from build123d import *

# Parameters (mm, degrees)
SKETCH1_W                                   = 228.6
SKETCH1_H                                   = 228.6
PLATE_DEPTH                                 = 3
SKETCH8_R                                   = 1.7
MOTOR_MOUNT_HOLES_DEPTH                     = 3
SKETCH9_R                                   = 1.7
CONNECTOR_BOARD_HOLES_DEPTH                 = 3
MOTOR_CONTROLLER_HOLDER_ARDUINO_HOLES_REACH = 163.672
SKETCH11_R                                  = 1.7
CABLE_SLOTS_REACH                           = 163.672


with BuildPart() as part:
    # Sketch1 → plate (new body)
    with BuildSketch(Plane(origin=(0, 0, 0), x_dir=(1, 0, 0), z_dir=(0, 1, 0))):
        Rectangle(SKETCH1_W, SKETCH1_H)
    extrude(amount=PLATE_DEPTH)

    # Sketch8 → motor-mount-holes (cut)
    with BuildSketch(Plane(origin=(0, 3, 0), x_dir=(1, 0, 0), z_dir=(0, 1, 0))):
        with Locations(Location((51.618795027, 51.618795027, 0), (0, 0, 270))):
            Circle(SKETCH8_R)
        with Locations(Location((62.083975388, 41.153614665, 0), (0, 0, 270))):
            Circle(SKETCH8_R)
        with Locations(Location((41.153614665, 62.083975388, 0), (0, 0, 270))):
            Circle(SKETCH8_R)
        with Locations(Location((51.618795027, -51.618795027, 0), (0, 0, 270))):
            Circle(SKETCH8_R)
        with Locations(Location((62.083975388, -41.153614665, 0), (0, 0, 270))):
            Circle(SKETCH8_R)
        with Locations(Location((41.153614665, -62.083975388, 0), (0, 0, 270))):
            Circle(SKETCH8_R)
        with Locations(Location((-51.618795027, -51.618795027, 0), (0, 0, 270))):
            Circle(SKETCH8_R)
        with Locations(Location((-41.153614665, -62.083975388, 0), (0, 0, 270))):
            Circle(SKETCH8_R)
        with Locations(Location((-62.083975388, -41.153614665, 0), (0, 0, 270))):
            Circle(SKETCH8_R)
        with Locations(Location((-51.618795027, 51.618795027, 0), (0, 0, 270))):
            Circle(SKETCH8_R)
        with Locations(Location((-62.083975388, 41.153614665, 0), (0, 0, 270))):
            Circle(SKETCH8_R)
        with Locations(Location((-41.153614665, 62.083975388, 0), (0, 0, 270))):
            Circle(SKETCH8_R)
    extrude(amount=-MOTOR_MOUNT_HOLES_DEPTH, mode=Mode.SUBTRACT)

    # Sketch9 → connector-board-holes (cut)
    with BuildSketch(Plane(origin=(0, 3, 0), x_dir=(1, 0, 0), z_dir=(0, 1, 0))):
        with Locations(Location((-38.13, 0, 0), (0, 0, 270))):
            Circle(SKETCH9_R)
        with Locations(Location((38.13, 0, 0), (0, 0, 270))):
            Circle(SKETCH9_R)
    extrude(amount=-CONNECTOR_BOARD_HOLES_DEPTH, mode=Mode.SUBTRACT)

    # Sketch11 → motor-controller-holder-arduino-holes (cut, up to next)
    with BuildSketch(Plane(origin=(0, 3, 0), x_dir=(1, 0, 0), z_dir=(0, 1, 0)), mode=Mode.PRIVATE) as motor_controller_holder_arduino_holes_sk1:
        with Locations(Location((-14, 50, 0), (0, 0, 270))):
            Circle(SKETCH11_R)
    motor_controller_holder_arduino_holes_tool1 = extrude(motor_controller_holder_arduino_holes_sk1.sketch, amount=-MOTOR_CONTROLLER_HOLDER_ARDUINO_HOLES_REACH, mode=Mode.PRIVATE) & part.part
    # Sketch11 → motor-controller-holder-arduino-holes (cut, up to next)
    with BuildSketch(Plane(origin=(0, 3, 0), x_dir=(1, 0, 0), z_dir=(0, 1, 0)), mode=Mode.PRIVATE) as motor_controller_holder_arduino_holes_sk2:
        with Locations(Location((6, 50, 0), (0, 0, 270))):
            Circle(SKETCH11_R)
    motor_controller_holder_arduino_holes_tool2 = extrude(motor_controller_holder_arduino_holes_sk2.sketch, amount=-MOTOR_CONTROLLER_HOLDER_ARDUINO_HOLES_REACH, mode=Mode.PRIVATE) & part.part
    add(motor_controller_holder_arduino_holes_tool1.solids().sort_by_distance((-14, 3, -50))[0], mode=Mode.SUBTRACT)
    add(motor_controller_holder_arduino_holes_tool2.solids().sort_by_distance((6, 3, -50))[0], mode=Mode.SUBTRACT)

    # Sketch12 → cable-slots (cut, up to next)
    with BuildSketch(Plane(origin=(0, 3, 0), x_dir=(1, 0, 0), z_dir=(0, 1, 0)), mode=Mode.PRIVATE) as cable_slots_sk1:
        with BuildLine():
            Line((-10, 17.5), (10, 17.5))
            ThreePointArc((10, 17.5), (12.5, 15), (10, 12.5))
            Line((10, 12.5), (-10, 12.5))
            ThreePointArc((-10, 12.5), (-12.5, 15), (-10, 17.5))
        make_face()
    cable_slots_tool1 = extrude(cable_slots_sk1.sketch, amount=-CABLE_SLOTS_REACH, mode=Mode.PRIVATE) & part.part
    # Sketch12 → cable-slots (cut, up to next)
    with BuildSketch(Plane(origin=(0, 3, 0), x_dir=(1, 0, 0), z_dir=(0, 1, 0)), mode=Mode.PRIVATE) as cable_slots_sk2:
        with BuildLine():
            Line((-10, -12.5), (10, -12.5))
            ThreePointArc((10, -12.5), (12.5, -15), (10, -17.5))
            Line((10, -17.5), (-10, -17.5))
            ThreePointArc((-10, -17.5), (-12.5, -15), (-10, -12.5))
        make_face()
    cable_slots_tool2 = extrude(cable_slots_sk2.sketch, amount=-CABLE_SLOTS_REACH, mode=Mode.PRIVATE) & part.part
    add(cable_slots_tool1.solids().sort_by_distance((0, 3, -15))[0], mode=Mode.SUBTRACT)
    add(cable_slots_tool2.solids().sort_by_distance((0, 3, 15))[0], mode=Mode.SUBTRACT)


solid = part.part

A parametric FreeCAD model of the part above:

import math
import FreeCAD as App
import Part
import Sketcher
from FreeCAD import Vector


def add_polygon(sketch, points):
    """Adds a closed chain of lines whose ends are joined by coincident constraints."""
    first, n = sketch.GeometryCount, len(points)
    for a, b in zip(points, points[1:] + points[:1]):
        sketch.addGeometry(Part.LineSegment(App.Vector(*a, 0), App.Vector(*b, 0)), False)
    for i in range(n):
        sketch.addConstraint(Sketcher.Constraint("Coincident", first + i, 2, first + (i + 1) % n, 1))

doc = App.newDocument("Part")
params = doc.addObject("Spreadsheet::Sheet", "Params")
for row, (alias, value) in enumerate([
    ("sketch1_width", "228.6 mm"),
    ("pad1_length", "3 mm"),
    ("sketch2_diameter", "3.4 mm"),
    ("pocket1_length", "3 mm"),
    ("sketch3_diameter", "3.4 mm"),
    ("pocket2_length", "3 mm"),
    ("sketch4_diameter", "3.4 mm"),
    ("sketch5_diameter", "3.4 mm"),
    ("sketch6_radius", "2.5 mm"),
    ("sketch6_width", "20 mm"),
    ("sketch7_radius", "2.5 mm"),
    ("sketch7_width", "20 mm"),
], start=1):
    params.set(f"A{row}", alias)
    params.set(f"B{row}", "=" + value)
    params.setAlias(f"B{row}", alias)

body = doc.addObject("PartDesign::Body", "Body")

# Sketch on XZ plane
sketch1 = doc.addObject("Sketcher::SketchObject", "Sketch")
body.addObject(sketch1)
sketch1.AttachmentSupport = (doc.XZ_Plane, [""])
sketch1.MapMode = "FlatFace"
add_polygon(sketch1, [(-114, -114), (-114, 114), (114, 114), (114, -114)])  # lines 0-3
sketch1.addConstraint([
    Sketcher.Constraint("Vertical", 0),
    Sketcher.Constraint("Horizontal", 1),
    Sketcher.Constraint("Vertical", 2),
    Sketcher.Constraint("Horizontal", 3),
    Sketcher.Constraint("Symmetric", 0, 2, 2, 2, -1, 1),
    Sketcher.Constraint("Equal", 3, 0),
    Sketcher.Constraint("DistanceX", 1, 1, 1, 2, 228.6),
])
sketch1.setExpression("Constraints[10]", "Params.sketch1_width")
pad1 = doc.addObject("PartDesign::Pad", "Pad")
body.addObject(pad1)
pad1.Profile = sketch1
pad1.setExpression("Length", "Params.pad1_length")
pad1.Reversed = True

# Sketch on XZ plane
sketch2 = doc.addObject("Sketcher::SketchObject", "Sketch001")
body.addObject(sketch2)
sketch2.AttachmentSupport = (doc.XZ_Plane, [""])
sketch2.MapMode = "FlatFace"
sketch2.AttachmentOffset = App.Placement(Vector(0, 0, -3), App.Rotation())
sketch2.addGeometry([
    Part.Circle(Vector(51.6, -51.6, 0), Vector(0, 0, 1), 1.7),  # 0
    Part.Circle(Vector(62.1, -41.2, 0), Vector(0, 0, 1), 1.7),  # 1
    Part.Circle(Vector(41.2, -62.1, 0), Vector(0, 0, 1), 1.7),  # 2
    Part.Circle(Vector(51.6, 51.6, 0), Vector(0, 0, 1), 1.7),  # 3
    Part.Circle(Vector(62.1, 41.2, 0), Vector(0, 0, 1), 1.7),  # 4
    Part.Circle(Vector(41.2, 62.1, 0), Vector(0, 0, 1), 1.7),  # 5
    Part.Circle(Vector(-51.6, 51.6, 0), Vector(0, 0, 1), 1.7),  # 6
    Part.Circle(Vector(-41.2, 62.1, 0), Vector(0, 0, 1), 1.7),  # 7
    Part.Circle(Vector(-62.1, 41.2, 0), Vector(0, 0, 1), 1.7),  # 8
    Part.Circle(Vector(-51.6, -51.6, 0), Vector(0, 0, 1), 1.7),  # 9
    Part.Circle(Vector(-62.1, -41.2, 0), Vector(0, 0, 1), 1.7),  # 10
    Part.Circle(Vector(-41.2, -62.1, 0), Vector(0, 0, 1), 1.7),  # 11
], False)
sketch2.addConstraint([
    Sketcher.Constraint("Equal", 0, 1),
    Sketcher.Constraint("Equal", 1, 2),
    Sketcher.Constraint("Equal", 2, 3),
    Sketcher.Constraint("Equal", 3, 4),
    Sketcher.Constraint("Equal", 4, 5),
    Sketcher.Constraint("Equal", 5, 6),
    Sketcher.Constraint("Equal", 6, 7),
    Sketcher.Constraint("Equal", 7, 8),
    Sketcher.Constraint("Equal", 8, 9),
    Sketcher.Constraint("Equal", 9, 10),
    Sketcher.Constraint("Equal", 10, 11),
    Sketcher.Constraint("Symmetric", 0, 3, 6, 3, -1, 1),
    Sketcher.Constraint("Symmetric", 2, 3, 7, 3, -1, 1),
    Sketcher.Constraint("Symmetric", 1, 3, 8, 3, -1, 1),
    Sketcher.Constraint("Symmetric", 3, 3, 9, 3, -1, 1),
    Sketcher.Constraint("Symmetric", 4, 3, 10, 3, -1, 1),
    Sketcher.Constraint("Symmetric", 5, 3, 11, 3, -1, 1),
    Sketcher.Constraint("Symmetric", 3, 3, 6, 3, -2),
    Sketcher.Constraint("Symmetric", 5, 3, 7, 3, -2),
    Sketcher.Constraint("Symmetric", 4, 3, 8, 3, -2),
    Sketcher.Constraint("Diameter", 0, 3.4),
    Sketcher.Constraint("DistanceX", 0, 3, 1, 3, 10.46518),
    Sketcher.Constraint("DistanceY", 0, 3, 1, 3, 10.46518),
    Sketcher.Constraint("DistanceX", 2, 3, 0, 3, 10.46518),
    Sketcher.Constraint("DistanceY", 2, 3, 0, 3, 10.46518),
    Sketcher.Constraint("DistanceY", 1, 3, 3, 3, 92.77241),
    Sketcher.Constraint("DistanceX", 6, 3, 5, 3, 92.77241),
])
sketch2.setExpression("Constraints[20]", "Params.sketch2_diameter")
pocket1 = doc.addObject("PartDesign::Pocket", "Pocket")
body.addObject(pocket1)
pocket1.Profile = sketch2
pocket1.setExpression("Length", "Params.pocket1_length")
pocket1.Reversed = True

# Sketch on XZ plane
sketch3 = doc.addObject("Sketcher::SketchObject", "Sketch002")
body.addObject(sketch3)
sketch3.AttachmentSupport = (doc.XZ_Plane, [""])
sketch3.MapMode = "FlatFace"
sketch3.AttachmentOffset = App.Placement(Vector(0, 0, -3), App.Rotation())
sketch3.addGeometry([
    Part.Circle(Vector(-38.1, 0, 0), Vector(0, 0, 1), 1.7),
    Part.Circle(Vector(38.1, 0, 0), Vector(0, 0, 1), 1.7),
], False)
sketch3.addConstraint([
    Sketcher.Constraint("Equal", 0, 1),
    Sketcher.Constraint("Symmetric", 0, 3, 1, 3, -1, 1),
    Sketcher.Constraint("PointOnObject", 0, 3, -1),
    Sketcher.Constraint("Diameter", 0, 3.4),
    Sketcher.Constraint("DistanceX", 0, 3, -1, 1, 38.13),
])
sketch3.setExpression("Constraints[3]", "Params.sketch3_diameter")
pocket2 = doc.addObject("PartDesign::Pocket", "Pocket001")
body.addObject(pocket2)
pocket2.Profile = sketch3
pocket2.setExpression("Length", "Params.pocket2_length")
pocket2.Reversed = True

# Sketch on XZ plane
sketch4 = doc.addObject("Sketcher::SketchObject", "Sketch003")
body.addObject(sketch4)
sketch4.AttachmentSupport = (doc.XZ_Plane, [""])
sketch4.MapMode = "FlatFace"
sketch4.AttachmentOffset = App.Placement(Vector(0, 0, -3), App.Rotation())
sketch4.addGeometry(Part.Circle(Vector(-14, -50, 0), Vector(0, 0, 1), 1.7), False)
sketch4.addConstraint([
    Sketcher.Constraint("Diameter", 0, 3.4),
    Sketcher.Constraint("DistanceX", 0, 3, -1, 1, 14.0),
    Sketcher.Constraint("DistanceY", 0, 3, -1, 1, 50.0),
])
sketch4.setExpression("Constraints[0]", "Params.sketch4_diameter")
pocket3 = doc.addObject("PartDesign::Pocket", "Pocket002")
body.addObject(pocket3)
pocket3.Profile = sketch4
pocket3.Type = "UpToFirst"
pocket3.Reversed = True

# Sketch on XZ plane
sketch5 = doc.addObject("Sketcher::SketchObject", "Sketch004")
body.addObject(sketch5)
sketch5.AttachmentSupport = (doc.XZ_Plane, [""])
sketch5.MapMode = "FlatFace"
sketch5.AttachmentOffset = App.Placement(Vector(0, 0, -3), App.Rotation())
sketch5.addGeometry(Part.Circle(Vector(6, -50, 0), Vector(0, 0, 1), 1.7), False)
sketch5.addConstraint([
    Sketcher.Constraint("Diameter", 0, 3.4),
    Sketcher.Constraint("DistanceX", -1, 1, 0, 3, 6.0),
    Sketcher.Constraint("DistanceY", 0, 3, -1, 1, 50.0),
])
sketch5.setExpression("Constraints[0]", "Params.sketch5_diameter")
pocket4 = doc.addObject("PartDesign::Pocket", "Pocket003")
body.addObject(pocket4)
pocket4.Profile = sketch5
pocket4.Type = "UpToFirst"
pocket4.Reversed = True

# Sketch on XZ plane
sketch6 = doc.addObject("Sketcher::SketchObject", "Sketch005")
body.addObject(sketch6)
sketch6.AttachmentSupport = (doc.XZ_Plane, [""])
sketch6.MapMode = "FlatFace"
sketch6.AttachmentOffset = App.Placement(Vector(0, 0, -3), App.Rotation())
sketch6.addGeometry([
    Part.LineSegment(Vector(10, -17.5, 0), Vector(-10, -17.5, 0)),
    Part.ArcOfCircle(Part.Circle(Vector(-10, -15, 0), Vector(0, 0, 1), 2.5), math.radians(90), math.radians(270)),
    Part.LineSegment(Vector(-10, -12.5, 0), Vector(10, -12.5, 0)),
    Part.ArcOfCircle(Part.Circle(Vector(10, -15, 0), Vector(0, 0, 1), 2.5), math.radians(-90), math.radians(90)),
], False)
sketch6.addConstraint([
    Sketcher.Constraint("Tangent", 0, 2, 1, 2),
    Sketcher.Constraint("Tangent", 1, 1, 2, 1),
    Sketcher.Constraint("Tangent", 2, 2, 3, 2),
    Sketcher.Constraint("Tangent", 3, 1, 0, 1),
    Sketcher.Constraint("Horizontal", 0),
    Sketcher.Constraint("Horizontal", 2),
    Sketcher.Constraint("Radius", 1, 2.5),
    Sketcher.Constraint("DistanceX", 0, 2, 0, 1, 20.0),
    Sketcher.Constraint("DistanceX", 1, 3, -1, 1, 10.0),
    Sketcher.Constraint("DistanceY", 1, 3, -1, 1, 15.0),
])
sketch6.setExpression("Constraints[6]", "Params.sketch6_radius")
sketch6.setExpression("Constraints[7]", "Params.sketch6_width")
pocket5 = doc.addObject("PartDesign::Pocket", "Pocket004")
body.addObject(pocket5)
pocket5.Profile = sketch6
pocket5.Type = "UpToFirst"
pocket5.Reversed = True

# Sketch on XZ plane
sketch7 = doc.addObject("Sketcher::SketchObject", "Sketch006")
body.addObject(sketch7)
sketch7.AttachmentSupport = (doc.XZ_Plane, [""])
sketch7.MapMode = "FlatFace"
sketch7.AttachmentOffset = App.Placement(Vector(0, 0, -3), App.Rotation())
sketch7.addGeometry([
    Part.LineSegment(Vector(10, 12.5, 0), Vector(-10, 12.5, 0)),
    Part.ArcOfCircle(Part.Circle(Vector(-10, 15, 0), Vector(0, 0, 1), 2.5), math.radians(90), math.radians(270)),
    Part.LineSegment(Vector(-10, 17.5, 0), Vector(10, 17.5, 0)),
    Part.ArcOfCircle(Part.Circle(Vector(10, 15, 0), Vector(0, 0, 1), 2.5), math.radians(-90), math.radians(90)),
], False)
sketch7.addConstraint([
    Sketcher.Constraint("Tangent", 0, 2, 1, 2),
    Sketcher.Constraint("Tangent", 1, 1, 2, 1),
    Sketcher.Constraint("Tangent", 2, 2, 3, 2),
    Sketcher.Constraint("Tangent", 3, 1, 0, 1),
    Sketcher.Constraint("Horizontal", 0),
    Sketcher.Constraint("Horizontal", 2),
    Sketcher.Constraint("Radius", 1, 2.5),
    Sketcher.Constraint("DistanceX", 0, 2, 0, 1, 20.0),
    Sketcher.Constraint("DistanceX", 1, 3, -1, 1, 10.0),
    Sketcher.Constraint("DistanceY", -1, 1, 1, 3, 15.0),
])
sketch7.setExpression("Constraints[6]", "Params.sketch7_radius")
sketch7.setExpression("Constraints[7]", "Params.sketch7_width")
pocket6 = doc.addObject("PartDesign::Pocket", "Pocket005")
body.addObject(pocket6)
pocket6.Profile = sketch7
pocket6.Type = "UpToFirst"
pocket6.Reversed = True

doc.recompute()
